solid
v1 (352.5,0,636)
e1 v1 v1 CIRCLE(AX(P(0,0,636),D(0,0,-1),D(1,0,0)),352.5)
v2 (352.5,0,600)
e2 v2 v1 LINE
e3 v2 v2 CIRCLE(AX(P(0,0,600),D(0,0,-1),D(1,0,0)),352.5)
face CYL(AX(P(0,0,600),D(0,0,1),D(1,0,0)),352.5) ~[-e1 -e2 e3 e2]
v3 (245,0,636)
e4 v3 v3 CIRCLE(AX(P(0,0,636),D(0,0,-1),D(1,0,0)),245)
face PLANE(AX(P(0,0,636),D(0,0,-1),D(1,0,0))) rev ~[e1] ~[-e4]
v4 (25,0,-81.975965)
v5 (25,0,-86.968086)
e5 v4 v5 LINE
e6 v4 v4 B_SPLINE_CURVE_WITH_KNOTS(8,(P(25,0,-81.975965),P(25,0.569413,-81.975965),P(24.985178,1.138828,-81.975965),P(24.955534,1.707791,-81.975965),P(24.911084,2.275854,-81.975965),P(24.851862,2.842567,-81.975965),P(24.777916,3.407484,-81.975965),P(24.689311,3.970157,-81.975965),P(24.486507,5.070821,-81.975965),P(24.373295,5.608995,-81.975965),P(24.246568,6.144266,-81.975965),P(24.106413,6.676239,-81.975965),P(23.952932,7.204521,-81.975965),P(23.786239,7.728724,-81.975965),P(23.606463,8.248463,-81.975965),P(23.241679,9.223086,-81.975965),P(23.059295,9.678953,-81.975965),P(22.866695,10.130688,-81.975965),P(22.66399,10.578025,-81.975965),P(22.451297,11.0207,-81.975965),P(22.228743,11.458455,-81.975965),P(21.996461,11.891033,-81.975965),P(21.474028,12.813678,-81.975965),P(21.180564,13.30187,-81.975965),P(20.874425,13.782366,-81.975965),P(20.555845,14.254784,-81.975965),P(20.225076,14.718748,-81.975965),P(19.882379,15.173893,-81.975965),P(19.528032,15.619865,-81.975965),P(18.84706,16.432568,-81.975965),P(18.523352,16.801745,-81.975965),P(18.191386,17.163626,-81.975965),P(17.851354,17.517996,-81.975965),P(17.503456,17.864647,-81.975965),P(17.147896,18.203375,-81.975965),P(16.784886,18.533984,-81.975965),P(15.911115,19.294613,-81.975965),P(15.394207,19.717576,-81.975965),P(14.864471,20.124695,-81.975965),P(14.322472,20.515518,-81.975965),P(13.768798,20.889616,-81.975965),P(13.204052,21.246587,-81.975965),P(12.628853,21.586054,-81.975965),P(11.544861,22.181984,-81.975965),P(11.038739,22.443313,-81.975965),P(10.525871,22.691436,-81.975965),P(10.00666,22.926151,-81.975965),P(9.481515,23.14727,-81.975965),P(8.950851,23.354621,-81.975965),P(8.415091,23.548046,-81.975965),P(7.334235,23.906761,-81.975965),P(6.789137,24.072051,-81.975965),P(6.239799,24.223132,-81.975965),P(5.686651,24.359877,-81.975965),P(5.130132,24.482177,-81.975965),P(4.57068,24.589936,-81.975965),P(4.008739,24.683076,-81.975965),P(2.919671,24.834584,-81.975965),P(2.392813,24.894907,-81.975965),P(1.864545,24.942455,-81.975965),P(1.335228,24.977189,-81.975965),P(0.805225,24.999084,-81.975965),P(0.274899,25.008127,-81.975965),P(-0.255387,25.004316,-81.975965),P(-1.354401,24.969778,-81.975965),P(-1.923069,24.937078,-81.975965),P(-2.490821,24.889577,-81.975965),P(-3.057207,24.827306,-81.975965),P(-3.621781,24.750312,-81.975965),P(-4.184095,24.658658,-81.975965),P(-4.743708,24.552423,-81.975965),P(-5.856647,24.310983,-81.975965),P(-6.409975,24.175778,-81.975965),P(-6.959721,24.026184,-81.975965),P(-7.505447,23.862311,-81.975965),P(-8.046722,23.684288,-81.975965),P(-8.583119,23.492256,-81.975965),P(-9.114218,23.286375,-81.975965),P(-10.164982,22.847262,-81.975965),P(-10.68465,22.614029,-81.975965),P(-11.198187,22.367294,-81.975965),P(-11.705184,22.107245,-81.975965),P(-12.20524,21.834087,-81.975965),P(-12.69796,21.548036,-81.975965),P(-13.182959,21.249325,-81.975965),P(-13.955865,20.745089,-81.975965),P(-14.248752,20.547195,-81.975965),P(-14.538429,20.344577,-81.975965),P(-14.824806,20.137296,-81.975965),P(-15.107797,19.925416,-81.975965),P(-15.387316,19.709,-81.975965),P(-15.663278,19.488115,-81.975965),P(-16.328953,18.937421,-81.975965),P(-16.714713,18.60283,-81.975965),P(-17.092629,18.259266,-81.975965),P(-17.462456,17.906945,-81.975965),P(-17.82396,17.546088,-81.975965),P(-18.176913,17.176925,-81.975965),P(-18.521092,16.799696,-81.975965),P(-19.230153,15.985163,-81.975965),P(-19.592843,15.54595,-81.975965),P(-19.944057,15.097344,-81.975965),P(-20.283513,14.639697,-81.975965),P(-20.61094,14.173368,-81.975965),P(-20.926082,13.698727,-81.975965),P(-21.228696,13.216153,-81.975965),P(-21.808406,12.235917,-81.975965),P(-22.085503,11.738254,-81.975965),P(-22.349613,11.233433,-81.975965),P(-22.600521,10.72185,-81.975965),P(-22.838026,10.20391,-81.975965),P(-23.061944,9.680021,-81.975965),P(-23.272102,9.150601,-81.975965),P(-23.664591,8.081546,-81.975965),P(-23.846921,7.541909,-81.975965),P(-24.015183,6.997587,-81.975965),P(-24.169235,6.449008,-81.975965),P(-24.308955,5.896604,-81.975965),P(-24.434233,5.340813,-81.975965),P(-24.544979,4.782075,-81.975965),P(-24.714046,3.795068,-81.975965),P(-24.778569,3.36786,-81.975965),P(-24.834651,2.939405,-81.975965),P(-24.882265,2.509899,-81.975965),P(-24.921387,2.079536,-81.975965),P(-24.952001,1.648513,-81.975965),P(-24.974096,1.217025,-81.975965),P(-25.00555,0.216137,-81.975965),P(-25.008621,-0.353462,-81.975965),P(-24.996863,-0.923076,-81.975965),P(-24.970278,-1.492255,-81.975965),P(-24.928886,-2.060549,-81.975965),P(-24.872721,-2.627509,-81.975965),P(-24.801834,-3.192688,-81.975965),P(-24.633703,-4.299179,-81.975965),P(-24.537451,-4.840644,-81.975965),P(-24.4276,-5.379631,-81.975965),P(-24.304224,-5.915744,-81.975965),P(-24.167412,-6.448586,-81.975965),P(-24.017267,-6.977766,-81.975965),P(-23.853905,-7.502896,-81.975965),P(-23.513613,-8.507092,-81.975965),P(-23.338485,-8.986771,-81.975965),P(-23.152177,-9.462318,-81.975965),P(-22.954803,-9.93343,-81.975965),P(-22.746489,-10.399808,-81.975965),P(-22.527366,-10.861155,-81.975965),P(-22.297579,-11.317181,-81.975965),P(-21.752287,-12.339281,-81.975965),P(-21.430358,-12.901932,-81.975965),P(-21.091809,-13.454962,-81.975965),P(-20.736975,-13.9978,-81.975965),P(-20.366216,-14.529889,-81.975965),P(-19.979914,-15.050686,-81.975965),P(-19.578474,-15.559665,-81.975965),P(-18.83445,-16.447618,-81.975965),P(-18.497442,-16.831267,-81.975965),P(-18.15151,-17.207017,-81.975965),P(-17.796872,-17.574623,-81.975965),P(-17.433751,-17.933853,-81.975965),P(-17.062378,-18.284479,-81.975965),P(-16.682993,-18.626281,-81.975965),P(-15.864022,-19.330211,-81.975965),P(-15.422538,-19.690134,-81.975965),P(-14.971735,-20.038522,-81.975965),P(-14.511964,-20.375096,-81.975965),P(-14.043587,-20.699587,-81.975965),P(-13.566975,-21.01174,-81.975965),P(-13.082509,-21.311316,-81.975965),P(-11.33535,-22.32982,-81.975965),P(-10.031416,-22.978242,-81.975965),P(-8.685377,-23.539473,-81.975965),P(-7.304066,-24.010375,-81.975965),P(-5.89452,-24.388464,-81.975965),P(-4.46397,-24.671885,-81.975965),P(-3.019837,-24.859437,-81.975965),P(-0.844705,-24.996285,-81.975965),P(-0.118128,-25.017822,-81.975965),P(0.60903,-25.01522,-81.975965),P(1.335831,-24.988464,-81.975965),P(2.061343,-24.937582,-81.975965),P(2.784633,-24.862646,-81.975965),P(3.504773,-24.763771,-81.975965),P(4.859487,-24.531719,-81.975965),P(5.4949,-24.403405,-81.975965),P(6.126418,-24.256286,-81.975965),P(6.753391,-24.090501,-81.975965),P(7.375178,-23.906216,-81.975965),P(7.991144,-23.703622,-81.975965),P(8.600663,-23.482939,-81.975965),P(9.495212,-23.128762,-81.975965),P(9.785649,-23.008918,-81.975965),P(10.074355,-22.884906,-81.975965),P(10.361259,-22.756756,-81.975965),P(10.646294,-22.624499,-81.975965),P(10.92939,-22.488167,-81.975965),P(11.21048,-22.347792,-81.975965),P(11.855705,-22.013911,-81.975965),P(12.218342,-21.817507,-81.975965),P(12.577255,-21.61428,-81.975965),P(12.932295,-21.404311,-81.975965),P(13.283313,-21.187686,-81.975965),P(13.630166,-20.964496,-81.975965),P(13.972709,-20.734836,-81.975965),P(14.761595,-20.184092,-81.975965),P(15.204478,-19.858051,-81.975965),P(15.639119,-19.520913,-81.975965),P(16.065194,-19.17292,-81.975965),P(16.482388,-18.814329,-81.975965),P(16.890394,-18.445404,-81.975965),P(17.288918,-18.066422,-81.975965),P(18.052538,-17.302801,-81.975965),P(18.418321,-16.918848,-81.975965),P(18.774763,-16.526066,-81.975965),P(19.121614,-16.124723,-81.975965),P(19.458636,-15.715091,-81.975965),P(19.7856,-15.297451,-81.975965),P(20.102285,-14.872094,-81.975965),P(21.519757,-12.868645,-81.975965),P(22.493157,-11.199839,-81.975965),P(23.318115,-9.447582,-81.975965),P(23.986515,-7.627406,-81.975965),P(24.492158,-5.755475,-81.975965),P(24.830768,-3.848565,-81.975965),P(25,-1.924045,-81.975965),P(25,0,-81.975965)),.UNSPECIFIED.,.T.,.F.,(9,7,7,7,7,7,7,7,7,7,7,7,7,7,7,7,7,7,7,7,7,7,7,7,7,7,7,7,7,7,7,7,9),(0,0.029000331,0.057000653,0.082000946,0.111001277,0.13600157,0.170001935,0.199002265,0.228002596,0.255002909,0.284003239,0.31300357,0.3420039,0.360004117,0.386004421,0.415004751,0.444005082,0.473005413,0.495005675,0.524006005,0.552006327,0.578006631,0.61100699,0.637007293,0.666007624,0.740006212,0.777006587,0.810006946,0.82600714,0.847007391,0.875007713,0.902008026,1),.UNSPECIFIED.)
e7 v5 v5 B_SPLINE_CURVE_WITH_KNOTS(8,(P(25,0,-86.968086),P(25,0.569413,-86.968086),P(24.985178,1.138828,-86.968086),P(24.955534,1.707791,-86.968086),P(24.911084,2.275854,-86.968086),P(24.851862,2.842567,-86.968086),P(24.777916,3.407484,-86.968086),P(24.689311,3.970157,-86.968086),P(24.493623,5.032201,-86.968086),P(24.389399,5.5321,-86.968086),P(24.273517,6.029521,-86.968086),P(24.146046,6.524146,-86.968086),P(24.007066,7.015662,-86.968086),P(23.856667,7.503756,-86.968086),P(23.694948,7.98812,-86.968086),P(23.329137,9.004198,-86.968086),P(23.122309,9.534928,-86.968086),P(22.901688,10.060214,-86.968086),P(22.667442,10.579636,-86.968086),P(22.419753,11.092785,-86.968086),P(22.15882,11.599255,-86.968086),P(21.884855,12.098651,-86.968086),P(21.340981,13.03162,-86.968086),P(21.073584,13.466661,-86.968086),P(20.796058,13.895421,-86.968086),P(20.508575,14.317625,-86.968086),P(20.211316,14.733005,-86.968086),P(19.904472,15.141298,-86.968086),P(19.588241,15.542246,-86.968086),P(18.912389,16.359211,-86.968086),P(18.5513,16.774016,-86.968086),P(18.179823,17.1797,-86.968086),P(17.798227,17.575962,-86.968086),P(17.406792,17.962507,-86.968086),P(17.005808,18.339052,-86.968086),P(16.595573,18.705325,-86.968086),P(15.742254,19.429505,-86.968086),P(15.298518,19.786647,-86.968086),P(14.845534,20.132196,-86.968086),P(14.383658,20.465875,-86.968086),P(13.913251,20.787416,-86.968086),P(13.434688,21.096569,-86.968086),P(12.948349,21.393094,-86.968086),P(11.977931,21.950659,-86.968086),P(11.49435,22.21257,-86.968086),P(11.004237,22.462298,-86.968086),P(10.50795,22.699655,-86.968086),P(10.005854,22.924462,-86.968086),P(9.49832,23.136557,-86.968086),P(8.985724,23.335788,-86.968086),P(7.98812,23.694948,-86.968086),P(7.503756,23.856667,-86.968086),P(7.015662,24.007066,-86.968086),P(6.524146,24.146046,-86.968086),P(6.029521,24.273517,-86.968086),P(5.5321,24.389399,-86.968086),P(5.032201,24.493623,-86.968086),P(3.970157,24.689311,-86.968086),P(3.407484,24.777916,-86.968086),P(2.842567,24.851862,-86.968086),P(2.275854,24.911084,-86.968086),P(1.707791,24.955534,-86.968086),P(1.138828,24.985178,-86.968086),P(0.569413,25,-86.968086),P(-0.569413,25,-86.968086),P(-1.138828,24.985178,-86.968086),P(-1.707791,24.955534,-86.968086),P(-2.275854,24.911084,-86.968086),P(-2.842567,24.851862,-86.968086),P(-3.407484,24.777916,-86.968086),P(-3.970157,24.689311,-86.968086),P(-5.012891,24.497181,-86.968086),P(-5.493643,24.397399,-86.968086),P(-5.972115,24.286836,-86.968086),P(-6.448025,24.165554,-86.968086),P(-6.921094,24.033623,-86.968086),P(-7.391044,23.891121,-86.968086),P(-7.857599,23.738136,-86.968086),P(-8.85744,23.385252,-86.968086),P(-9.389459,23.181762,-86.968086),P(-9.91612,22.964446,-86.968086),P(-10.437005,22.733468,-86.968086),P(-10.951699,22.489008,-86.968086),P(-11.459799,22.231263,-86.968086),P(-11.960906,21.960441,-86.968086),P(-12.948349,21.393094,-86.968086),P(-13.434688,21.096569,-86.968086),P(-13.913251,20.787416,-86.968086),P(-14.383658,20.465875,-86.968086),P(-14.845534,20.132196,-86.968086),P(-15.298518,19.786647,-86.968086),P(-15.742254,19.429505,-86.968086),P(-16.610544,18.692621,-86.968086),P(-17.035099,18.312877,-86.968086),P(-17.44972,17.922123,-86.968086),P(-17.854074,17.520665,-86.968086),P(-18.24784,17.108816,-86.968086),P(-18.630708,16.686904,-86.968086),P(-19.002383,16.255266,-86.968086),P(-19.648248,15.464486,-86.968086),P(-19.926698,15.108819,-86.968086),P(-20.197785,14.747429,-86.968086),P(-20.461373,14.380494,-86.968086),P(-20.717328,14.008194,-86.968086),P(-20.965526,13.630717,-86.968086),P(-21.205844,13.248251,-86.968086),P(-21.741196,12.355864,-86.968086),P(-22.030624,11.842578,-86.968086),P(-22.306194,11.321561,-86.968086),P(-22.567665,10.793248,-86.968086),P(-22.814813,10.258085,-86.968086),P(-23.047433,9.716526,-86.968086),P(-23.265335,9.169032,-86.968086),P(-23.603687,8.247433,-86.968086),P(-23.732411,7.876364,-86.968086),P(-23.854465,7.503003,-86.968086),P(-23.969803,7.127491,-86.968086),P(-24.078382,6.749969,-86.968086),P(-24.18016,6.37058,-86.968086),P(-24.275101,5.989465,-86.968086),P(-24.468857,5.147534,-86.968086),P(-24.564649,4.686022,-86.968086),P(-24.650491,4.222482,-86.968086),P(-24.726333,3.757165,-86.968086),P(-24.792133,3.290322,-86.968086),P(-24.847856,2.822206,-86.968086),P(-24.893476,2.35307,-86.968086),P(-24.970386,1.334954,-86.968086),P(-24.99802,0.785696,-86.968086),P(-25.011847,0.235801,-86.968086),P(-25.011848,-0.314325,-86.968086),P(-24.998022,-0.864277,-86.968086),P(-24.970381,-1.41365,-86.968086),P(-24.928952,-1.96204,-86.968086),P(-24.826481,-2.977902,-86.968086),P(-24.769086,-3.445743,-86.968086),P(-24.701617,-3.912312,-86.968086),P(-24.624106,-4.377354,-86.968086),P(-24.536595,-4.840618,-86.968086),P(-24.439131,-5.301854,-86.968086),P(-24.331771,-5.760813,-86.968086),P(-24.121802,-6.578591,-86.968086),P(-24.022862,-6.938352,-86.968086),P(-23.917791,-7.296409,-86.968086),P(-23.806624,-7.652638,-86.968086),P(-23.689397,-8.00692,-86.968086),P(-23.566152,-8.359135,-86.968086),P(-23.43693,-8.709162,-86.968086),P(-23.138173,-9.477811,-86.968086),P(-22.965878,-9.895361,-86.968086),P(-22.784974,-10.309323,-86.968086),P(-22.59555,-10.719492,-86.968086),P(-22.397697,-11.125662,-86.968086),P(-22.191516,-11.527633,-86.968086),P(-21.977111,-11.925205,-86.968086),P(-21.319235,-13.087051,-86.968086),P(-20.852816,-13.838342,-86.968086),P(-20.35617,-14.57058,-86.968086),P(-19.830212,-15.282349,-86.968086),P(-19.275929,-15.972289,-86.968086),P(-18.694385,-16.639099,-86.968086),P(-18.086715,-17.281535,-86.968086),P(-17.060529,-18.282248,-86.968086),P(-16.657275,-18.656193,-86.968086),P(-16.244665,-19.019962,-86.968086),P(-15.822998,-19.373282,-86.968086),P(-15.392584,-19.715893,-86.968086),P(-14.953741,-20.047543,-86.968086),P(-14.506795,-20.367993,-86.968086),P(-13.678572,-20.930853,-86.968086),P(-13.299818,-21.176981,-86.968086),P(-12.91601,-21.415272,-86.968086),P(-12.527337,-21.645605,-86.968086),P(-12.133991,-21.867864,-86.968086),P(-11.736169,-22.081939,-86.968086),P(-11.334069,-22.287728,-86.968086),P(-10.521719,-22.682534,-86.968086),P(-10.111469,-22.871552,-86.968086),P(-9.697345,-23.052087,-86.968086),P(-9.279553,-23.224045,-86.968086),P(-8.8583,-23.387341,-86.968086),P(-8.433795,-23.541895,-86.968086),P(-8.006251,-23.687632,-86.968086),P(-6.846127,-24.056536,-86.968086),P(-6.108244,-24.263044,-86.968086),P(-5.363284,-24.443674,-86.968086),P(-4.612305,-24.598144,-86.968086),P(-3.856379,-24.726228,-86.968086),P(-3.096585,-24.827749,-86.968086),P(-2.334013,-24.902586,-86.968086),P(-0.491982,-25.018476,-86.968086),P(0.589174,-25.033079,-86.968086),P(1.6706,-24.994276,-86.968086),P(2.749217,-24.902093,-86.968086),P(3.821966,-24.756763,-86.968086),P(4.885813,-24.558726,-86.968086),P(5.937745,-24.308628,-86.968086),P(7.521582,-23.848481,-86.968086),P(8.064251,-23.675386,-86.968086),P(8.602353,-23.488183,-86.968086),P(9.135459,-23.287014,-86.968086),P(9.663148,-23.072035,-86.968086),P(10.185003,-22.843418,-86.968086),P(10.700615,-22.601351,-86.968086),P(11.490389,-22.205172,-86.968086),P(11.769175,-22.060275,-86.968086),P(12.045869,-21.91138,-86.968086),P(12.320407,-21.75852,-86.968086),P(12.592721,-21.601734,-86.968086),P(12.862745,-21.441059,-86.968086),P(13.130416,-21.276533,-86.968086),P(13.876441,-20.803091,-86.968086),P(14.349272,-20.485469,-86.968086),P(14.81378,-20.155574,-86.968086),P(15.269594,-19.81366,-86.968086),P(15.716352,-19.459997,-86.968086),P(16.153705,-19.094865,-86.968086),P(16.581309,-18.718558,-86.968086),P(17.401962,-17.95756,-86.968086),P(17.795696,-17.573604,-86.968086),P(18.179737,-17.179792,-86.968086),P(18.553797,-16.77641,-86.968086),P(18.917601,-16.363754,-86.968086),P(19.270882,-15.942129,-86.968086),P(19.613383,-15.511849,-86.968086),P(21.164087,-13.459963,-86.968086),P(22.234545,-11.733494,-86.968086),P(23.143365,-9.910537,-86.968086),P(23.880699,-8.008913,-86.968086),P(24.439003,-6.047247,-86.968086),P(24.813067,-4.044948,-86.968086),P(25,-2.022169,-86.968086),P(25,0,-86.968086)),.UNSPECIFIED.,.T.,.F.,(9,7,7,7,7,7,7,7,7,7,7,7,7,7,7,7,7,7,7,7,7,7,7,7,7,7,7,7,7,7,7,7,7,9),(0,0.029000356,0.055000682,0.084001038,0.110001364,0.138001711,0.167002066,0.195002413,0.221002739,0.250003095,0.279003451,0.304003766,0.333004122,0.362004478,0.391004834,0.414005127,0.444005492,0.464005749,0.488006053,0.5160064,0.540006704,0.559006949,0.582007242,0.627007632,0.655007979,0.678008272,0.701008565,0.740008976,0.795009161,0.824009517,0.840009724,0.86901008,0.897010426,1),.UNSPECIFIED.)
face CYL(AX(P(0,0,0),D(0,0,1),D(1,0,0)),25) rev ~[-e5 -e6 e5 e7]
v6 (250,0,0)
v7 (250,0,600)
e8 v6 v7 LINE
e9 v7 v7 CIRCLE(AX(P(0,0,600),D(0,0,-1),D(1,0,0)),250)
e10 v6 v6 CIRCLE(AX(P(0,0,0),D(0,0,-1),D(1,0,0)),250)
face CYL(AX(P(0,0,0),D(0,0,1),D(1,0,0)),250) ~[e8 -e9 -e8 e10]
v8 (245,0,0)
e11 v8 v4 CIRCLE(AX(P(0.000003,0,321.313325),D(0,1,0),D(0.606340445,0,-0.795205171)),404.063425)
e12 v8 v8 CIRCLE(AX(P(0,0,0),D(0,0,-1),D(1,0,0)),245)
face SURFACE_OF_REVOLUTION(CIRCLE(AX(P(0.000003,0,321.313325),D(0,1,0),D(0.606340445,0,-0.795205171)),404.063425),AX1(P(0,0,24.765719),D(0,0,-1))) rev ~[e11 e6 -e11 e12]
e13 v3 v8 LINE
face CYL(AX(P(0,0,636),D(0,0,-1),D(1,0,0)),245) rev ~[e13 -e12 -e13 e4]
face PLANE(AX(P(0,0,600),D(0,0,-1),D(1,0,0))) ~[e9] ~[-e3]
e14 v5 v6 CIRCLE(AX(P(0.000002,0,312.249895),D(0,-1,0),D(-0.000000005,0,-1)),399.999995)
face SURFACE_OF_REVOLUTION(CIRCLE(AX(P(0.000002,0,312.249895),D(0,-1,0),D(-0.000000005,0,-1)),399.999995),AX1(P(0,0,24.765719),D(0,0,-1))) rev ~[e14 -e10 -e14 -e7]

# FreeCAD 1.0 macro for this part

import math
import FreeCAD as App
import Part
import Sketcher
Q = App.Units.Quantity

doc = App.newDocument("Part")
body = doc.addObject("PartDesign::Body", "Body")

sketch1 = body.newObject("Sketcher::SketchObject", "Sketch")
sketch1.AttachmentSupport = (doc.getObject("XZ_Plane"), [""])
sketch1.MapMode = "FlatFace"
sketch1.addGeometry([
    Part.ArcOfCircle(Part.Circle(App.Vector(0.000003, 321.313325, 0), App.Vector(0, 0, 1), 404.063425), math.radians(-90), math.radians(-52.674639)),
    Part.LineSegment(App.Vector(0, -82.7501, 0), App.Vector(0, -87.7501, 0)),
    Part.ArcOfCircle(Part.Circle(App.Vector(0.000002, 312.249895, 0), App.Vector(0, 0, 1), 399.999995), math.radians(-90), math.radians(-51.317812)),
    Part.LineSegment(App.Vector(250, 0, 0), App.Vector(250, 600, 0)),
    Part.LineSegment(App.Vector(250, 600, 0), App.Vector(352.5, 600, 0)),
    Part.LineSegment(App.Vector(352.5, 600, 0), App.Vector(352.5, 636, 0)),
    Part.LineSegment(App.Vector(352.5, 636, 0), App.Vector(245, 636, 0)),
    Part.LineSegment(App.Vector(245, 636, 0), App.Vector(245, 0, 0)),
], False)
sketch1.addConstraint([
    Sketcher.Constraint("Coincident", 0, 1, 1, 1),
    Sketcher.Constraint("Coincident", 1, 2, 2, 1),
    Sketcher.Constraint("Coincident", 2, 2, 3, 1),
    Sketcher.Constraint("Coincident", 3, 2, 4, 1),
    Sketcher.Constraint("Coincident", 4, 2, 5, 1),
    Sketcher.Constraint("Coincident", 5, 2, 6, 1),
    Sketcher.Constraint("Coincident", 6, 2, 7, 1),
    Sketcher.Constraint("Coincident", 7, 2, 0, 2),
    Sketcher.Constraint("Vertical", 1),
    Sketcher.Constraint("Vertical", 3),
    Sketcher.Constraint("Horizontal", 4),
    Sketcher.Constraint("Vertical", 5),
    Sketcher.Constraint("Horizontal", 6),
    Sketcher.Constraint("Vertical", 7),
    Sketcher.Constraint("PointOnObject", 2, 3, -2),
    Sketcher.Constraint("PointOnObject", 1, 2, -2),
    Sketcher.Constraint("PointOnObject", 2, 2, -1),
    Sketcher.Constraint("PointOnObject", 7, 2, -1),
    Sketcher.Constraint("Vertical", 0, 3, 2, 3),
    Sketcher.Constraint("DistanceY", 1, 2, 1, 1, Q("5 mm")),
    Sketcher.Constraint("DistanceY", 3, 1, 3, 2, Q("600 mm")),
    Sketcher.Constraint("DistanceY", 5, 1, 5, 2, Q("36 mm")),
    Sketcher.Constraint("DistanceX", 4, 1, 4, 2, Q("102.5 mm")),
    Sketcher.Constraint("DistanceX", 6, 2, 6, 1, Q("107.5 mm")),
    Sketcher.Constraint("DistanceX", -1, 1, 3, 2, Q("250 mm")),
    Sketcher.Constraint("Radius", 0, Q("404.063425 mm")),
])
revolution = body.newObject("PartDesign::Revolution", "Revolution")
revolution.Profile = sketch1
revolution.ReferenceAxis = (sketch1, ["V_Axis"])
revolution.Angle = 360

sketch2 = body.newObject("Sketcher::SketchObject", "Sketch001")
sketch2.AttachmentSupport = (doc.getObject("XY_Plane"), [""])
sketch2.MapMode = "FlatFace"
sketch2.addGeometry(Part.Circle(App.Vector(0, 0, 0), App.Vector(0, 0, 1), 25), False)
sketch2.addConstraint([
    Sketcher.Constraint("Coincident", 0, 3, -1, 1),
    Sketcher.Constraint("Diameter", 0, Q("50 mm")),
])
pocket1 = body.newObject("PartDesign::Pocket", "Pocket")
pocket1.Profile = sketch2
pocket1.Type = "ThroughAll"

doc.recompute()
